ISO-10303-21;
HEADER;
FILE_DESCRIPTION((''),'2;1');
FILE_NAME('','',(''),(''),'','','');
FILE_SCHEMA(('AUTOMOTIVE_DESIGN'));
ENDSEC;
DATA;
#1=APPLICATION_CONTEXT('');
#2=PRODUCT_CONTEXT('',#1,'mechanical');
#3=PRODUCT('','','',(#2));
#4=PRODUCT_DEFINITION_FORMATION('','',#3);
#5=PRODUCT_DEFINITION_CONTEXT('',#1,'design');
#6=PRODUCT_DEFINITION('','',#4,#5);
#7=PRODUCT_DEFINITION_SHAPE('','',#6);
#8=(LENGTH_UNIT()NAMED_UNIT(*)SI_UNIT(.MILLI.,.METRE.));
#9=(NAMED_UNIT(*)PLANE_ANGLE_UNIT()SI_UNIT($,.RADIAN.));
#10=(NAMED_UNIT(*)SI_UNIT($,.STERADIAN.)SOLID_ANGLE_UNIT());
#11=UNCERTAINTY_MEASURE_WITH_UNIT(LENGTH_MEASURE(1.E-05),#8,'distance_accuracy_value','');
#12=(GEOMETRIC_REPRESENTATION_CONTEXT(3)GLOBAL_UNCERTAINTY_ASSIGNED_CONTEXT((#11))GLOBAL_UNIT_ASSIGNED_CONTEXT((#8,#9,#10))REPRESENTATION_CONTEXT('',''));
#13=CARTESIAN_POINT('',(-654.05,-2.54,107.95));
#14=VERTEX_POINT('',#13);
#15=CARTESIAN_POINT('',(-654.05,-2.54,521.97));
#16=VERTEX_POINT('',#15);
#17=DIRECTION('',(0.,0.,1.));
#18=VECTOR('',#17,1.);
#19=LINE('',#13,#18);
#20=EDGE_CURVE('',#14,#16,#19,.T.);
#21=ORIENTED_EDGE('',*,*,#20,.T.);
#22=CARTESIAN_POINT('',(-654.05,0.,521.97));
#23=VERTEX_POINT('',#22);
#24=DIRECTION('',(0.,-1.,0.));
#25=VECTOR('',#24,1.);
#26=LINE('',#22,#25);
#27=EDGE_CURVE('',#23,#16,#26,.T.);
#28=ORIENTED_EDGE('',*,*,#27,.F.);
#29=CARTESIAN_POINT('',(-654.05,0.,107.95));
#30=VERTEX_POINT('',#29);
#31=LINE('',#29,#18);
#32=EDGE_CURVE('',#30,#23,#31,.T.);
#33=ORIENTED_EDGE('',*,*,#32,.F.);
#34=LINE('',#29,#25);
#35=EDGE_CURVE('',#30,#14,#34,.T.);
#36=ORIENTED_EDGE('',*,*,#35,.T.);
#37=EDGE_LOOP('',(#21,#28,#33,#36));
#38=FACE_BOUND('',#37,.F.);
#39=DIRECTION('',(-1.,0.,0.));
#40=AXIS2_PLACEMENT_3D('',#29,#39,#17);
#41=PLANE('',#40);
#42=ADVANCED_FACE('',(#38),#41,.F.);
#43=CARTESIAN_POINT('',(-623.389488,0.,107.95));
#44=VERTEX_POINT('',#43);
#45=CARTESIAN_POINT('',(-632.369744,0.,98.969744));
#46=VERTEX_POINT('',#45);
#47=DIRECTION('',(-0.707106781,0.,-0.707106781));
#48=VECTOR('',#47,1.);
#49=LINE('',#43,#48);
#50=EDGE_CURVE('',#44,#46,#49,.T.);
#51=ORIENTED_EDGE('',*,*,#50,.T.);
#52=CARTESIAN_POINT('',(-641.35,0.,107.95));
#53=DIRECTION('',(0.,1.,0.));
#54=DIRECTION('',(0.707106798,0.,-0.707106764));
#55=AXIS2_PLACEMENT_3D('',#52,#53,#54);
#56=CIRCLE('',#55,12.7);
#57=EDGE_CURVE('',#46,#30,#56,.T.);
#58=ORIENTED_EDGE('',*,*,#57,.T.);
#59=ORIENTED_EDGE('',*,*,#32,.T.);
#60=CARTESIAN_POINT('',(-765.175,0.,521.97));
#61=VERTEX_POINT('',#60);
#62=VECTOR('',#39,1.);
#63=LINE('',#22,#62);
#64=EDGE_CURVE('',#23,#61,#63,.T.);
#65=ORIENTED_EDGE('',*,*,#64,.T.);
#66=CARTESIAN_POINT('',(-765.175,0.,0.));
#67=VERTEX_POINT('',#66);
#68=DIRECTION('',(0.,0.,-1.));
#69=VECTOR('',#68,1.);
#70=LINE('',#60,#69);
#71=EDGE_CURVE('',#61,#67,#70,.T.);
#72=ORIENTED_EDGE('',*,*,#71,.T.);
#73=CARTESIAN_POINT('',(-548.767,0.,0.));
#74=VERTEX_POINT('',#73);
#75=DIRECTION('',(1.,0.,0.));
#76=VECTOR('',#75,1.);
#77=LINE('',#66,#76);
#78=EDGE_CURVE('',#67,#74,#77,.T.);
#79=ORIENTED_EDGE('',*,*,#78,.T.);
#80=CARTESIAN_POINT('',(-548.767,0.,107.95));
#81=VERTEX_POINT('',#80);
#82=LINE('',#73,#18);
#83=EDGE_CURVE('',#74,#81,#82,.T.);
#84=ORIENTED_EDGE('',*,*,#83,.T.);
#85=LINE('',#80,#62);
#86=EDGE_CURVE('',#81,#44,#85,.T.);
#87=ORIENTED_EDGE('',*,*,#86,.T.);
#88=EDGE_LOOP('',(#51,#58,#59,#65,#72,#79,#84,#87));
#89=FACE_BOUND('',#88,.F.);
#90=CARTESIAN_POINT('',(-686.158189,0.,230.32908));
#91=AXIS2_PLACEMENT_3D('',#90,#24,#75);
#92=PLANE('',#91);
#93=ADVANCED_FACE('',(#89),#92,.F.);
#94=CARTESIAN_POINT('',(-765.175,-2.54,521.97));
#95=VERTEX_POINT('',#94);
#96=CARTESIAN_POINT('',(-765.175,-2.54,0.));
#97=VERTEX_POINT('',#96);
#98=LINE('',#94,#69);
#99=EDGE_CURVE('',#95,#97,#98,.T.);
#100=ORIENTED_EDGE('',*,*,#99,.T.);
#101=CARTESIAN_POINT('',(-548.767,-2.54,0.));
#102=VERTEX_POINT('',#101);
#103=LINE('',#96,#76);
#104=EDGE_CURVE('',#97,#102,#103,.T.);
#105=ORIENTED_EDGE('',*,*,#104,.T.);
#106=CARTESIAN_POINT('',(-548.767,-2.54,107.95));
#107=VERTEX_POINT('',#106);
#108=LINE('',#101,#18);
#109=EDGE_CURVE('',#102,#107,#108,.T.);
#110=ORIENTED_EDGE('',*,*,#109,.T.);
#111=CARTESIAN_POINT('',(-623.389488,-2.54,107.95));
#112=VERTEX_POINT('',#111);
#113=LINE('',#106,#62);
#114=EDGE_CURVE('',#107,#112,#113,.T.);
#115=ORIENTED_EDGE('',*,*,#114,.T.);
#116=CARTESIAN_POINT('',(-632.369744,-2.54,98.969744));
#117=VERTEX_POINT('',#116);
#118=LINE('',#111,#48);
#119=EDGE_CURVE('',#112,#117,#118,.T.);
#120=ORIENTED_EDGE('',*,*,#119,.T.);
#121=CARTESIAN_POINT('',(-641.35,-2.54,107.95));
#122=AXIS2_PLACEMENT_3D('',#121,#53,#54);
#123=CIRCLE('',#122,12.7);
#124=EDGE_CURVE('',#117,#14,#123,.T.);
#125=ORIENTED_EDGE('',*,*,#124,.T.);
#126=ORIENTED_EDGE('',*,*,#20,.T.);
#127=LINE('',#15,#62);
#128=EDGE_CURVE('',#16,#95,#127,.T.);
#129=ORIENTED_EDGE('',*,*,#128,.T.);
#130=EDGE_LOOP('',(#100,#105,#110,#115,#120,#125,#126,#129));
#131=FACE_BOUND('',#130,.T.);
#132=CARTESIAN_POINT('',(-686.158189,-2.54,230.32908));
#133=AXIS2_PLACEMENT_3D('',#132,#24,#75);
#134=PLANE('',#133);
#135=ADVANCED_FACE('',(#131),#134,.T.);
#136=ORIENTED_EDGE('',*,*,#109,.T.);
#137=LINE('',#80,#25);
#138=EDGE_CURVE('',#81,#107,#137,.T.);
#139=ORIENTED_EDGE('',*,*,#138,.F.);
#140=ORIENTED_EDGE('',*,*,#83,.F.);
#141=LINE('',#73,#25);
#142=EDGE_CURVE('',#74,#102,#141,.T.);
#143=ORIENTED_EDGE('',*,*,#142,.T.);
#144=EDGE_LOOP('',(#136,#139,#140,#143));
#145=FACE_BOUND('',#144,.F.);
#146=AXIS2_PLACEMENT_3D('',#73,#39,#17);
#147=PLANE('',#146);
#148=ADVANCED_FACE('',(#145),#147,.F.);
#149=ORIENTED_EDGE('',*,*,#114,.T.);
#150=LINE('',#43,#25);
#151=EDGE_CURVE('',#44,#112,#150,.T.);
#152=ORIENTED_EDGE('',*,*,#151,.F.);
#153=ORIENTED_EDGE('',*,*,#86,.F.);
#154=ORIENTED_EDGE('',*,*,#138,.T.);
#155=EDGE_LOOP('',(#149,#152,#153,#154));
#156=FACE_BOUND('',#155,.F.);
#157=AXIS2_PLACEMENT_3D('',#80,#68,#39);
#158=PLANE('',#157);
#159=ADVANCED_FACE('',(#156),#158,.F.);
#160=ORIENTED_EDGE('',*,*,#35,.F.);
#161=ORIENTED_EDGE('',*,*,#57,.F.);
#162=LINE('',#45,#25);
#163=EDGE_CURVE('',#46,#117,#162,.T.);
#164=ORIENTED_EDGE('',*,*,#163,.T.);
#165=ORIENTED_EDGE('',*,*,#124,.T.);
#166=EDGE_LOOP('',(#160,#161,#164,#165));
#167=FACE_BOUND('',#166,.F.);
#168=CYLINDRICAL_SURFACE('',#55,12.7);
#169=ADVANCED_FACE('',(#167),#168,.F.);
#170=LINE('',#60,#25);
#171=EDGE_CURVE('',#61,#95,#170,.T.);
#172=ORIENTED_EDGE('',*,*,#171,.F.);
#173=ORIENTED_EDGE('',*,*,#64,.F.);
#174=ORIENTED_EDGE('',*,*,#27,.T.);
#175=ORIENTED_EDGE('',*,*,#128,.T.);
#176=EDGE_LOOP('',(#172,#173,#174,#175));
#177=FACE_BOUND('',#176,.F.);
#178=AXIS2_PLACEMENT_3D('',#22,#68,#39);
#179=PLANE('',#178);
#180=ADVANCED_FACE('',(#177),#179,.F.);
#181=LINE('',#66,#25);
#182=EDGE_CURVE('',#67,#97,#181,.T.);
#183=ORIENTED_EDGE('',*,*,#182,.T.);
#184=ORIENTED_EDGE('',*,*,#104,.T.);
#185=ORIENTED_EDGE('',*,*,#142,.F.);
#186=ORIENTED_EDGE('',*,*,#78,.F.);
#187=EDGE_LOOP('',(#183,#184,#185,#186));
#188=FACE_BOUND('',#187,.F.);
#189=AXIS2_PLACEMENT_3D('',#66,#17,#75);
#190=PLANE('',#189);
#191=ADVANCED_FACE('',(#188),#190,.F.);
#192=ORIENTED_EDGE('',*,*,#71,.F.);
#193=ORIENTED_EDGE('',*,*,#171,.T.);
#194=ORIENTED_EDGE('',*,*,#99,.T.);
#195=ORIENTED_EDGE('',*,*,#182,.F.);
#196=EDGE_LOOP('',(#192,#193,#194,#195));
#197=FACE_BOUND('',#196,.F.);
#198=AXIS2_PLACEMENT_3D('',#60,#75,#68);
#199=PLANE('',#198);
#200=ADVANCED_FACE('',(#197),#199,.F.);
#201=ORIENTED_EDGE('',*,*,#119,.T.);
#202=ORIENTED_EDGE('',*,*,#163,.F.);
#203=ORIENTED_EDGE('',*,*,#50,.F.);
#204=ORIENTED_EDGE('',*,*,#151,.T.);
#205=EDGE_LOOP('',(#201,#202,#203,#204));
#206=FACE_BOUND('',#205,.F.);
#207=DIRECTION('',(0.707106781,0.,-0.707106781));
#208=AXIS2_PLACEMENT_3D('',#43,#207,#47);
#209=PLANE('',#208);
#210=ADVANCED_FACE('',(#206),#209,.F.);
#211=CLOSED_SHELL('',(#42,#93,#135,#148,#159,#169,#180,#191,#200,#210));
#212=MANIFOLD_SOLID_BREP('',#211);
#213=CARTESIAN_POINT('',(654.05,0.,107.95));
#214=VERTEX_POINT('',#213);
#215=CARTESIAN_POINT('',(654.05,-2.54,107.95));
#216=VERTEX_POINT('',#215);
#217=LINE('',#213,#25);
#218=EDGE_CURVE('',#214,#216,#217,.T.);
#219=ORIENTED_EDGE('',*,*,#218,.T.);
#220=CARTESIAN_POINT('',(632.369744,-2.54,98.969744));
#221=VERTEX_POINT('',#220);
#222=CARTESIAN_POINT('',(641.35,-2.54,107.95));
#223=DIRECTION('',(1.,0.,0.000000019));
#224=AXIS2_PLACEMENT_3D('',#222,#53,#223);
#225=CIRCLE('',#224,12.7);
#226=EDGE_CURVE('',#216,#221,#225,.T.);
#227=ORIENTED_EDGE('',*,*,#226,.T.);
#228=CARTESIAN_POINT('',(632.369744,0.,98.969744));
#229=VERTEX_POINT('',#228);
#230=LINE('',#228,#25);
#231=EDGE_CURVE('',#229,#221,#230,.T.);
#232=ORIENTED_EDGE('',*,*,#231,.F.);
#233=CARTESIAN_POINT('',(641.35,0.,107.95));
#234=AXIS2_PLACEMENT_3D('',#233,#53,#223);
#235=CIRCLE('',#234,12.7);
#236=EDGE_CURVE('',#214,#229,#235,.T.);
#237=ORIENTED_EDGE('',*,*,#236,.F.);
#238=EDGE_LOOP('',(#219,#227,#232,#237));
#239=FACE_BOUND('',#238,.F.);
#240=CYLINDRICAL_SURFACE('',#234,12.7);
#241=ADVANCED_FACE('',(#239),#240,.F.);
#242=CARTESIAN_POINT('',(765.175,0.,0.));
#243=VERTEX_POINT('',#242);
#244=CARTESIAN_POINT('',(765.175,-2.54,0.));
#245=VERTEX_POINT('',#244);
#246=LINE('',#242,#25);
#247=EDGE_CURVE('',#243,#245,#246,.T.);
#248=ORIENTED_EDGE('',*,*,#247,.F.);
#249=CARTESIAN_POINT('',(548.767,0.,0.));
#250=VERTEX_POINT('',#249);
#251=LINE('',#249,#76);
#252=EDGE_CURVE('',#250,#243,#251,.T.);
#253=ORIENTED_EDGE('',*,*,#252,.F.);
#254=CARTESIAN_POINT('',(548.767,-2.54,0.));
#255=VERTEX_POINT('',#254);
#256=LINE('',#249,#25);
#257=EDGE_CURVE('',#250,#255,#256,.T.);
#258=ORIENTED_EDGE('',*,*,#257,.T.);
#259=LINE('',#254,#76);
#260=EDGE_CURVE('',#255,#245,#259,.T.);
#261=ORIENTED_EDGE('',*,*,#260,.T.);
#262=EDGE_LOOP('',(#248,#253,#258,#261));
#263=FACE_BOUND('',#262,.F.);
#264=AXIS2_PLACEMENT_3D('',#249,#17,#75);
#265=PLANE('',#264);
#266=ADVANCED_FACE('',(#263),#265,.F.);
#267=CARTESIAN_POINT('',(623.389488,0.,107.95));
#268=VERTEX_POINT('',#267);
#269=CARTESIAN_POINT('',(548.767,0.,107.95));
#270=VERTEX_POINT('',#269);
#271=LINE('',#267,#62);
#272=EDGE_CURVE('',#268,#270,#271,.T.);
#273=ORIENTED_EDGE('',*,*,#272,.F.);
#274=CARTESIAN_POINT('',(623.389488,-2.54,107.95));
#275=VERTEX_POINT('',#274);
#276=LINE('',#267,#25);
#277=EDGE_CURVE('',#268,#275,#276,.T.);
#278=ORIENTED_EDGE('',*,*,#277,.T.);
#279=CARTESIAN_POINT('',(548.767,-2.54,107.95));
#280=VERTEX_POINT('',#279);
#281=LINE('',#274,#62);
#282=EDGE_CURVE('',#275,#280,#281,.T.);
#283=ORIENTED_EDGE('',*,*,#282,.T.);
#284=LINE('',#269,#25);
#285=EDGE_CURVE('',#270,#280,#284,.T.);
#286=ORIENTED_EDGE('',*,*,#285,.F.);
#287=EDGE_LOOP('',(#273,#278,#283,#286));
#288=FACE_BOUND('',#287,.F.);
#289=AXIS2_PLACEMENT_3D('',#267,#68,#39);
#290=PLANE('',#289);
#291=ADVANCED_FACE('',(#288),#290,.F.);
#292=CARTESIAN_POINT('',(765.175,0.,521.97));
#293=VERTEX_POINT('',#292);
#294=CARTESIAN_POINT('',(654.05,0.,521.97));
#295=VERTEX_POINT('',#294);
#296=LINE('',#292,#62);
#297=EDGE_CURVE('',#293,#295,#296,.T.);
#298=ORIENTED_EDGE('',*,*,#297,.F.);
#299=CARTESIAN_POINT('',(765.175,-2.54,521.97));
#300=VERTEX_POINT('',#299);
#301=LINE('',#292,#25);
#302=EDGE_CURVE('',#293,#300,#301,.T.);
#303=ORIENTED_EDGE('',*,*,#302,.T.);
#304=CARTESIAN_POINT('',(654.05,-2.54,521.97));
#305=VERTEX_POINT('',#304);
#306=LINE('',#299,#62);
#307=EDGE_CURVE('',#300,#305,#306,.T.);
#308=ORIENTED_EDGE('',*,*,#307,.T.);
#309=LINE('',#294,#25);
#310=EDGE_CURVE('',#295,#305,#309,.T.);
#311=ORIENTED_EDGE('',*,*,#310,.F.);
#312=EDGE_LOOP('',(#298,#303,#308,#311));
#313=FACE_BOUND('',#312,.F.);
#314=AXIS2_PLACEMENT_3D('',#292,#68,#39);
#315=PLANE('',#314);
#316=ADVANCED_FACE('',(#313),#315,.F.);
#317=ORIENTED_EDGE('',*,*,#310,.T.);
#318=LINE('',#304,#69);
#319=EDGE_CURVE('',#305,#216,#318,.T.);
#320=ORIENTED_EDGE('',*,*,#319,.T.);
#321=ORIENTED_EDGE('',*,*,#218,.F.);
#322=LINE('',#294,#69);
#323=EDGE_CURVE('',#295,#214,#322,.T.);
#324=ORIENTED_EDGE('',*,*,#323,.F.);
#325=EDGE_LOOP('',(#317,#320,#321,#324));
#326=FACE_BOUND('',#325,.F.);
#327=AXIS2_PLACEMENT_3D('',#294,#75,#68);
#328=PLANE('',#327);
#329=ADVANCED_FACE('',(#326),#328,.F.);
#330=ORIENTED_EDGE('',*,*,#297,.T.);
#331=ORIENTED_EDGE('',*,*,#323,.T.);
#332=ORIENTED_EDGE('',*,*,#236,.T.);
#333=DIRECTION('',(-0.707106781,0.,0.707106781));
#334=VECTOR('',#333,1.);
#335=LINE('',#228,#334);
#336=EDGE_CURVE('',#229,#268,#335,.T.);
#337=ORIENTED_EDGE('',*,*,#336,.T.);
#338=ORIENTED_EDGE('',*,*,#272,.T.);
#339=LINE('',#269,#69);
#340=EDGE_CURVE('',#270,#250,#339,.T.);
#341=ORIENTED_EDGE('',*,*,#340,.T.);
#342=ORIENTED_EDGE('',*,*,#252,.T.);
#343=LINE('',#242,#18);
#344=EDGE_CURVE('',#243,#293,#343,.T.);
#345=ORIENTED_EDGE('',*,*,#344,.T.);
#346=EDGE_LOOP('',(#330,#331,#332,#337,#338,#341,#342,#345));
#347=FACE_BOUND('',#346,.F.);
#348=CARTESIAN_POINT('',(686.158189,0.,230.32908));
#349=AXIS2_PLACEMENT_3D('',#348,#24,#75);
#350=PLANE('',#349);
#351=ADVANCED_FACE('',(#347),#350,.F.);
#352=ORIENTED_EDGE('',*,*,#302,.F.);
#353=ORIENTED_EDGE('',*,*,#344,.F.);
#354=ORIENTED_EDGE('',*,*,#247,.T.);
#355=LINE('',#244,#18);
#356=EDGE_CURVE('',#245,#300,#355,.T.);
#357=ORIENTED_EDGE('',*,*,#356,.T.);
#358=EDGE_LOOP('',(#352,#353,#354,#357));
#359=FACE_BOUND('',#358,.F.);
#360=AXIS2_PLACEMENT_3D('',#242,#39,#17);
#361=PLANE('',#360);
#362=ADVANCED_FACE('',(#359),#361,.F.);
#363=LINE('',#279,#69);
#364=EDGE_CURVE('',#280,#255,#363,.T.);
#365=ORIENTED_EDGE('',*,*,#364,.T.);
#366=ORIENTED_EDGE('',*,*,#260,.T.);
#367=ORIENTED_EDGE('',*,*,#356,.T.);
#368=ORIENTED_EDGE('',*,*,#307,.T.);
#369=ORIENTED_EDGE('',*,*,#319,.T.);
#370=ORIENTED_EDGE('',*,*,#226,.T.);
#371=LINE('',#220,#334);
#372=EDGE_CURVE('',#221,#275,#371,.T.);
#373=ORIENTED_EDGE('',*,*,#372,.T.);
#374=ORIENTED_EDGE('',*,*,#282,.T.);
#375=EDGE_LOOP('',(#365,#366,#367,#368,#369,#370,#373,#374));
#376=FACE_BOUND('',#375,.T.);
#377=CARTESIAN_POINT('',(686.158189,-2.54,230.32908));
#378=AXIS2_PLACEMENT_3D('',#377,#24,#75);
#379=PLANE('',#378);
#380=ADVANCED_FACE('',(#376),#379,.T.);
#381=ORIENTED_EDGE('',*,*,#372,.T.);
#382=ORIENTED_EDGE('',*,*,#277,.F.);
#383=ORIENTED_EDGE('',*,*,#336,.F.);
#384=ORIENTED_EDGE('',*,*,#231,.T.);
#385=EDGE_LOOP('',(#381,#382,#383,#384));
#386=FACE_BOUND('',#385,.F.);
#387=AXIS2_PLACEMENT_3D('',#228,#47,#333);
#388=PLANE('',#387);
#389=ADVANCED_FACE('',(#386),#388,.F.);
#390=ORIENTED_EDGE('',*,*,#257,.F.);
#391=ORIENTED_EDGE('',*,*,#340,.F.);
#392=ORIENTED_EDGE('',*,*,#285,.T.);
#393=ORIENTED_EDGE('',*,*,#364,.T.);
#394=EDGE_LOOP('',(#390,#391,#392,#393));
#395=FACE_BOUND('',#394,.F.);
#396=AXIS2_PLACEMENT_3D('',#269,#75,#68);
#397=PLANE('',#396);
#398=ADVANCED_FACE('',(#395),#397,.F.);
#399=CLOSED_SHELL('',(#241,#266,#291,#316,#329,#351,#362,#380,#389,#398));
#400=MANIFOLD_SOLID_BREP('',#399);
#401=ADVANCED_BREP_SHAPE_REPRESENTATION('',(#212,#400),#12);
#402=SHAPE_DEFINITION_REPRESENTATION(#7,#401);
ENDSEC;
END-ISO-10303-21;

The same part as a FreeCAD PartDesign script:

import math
import FreeCAD as App
import Part
import Sketcher
from FreeCAD import Vector
Q = App.Units.Quantity

doc = App.newDocument("Part")
body = doc.addObject("PartDesign::Body", "Body")
body.AllowCompound = True

# Sketch on XZ plane
sketch1 = body.newObject("Sketcher::SketchObject", "Sketch")
sketch1.AttachmentSupport = (doc.getObject("XZ_Plane"), [""])
sketch1.MapMode = "FlatFace"
sketch1.addGeometry([
    Part.LineSegment(Vector(-623.389488, 107.95, 0), Vector(-632.369744, 98.969744, 0)),  # 0
    Part.ArcOfCircle(Part.Circle(Vector(-641.35, 107.95, 0), Vector(0, 0, 1), 12.7), math.radians(179.999999), math.radians(315.000001)),  # 1
    Part.LineSegment(Vector(-654.05, 107.95, 0), Vector(-654.05, 521.97, 0)),  # 2
    Part.LineSegment(Vector(-654.05, 521.97, 0), Vector(-765.175, 521.97, 0)),  # 3
    Part.LineSegment(Vector(-765.175, 521.97, 0), Vector(-765.175, 0, 0)),  # 4
    Part.LineSegment(Vector(-765.175, 0, 0), Vector(-548.767, 0, 0)),  # 5
    Part.LineSegment(Vector(-548.767, 0, 0), Vector(-548.767, 107.95, 0)),  # 6
    Part.LineSegment(Vector(-548.767, 107.95, 0), Vector(-623.389488, 107.95, 0)),  # 7
    Part.LineSegment(Vector(765.175, 0, 0), Vector(765.175, 521.97, 0)),  # 8
    Part.LineSegment(Vector(765.175, 521.97, 0), Vector(654.05, 521.97, 0)),  # 9
    Part.LineSegment(Vector(654.05, 521.97, 0), Vector(654.05, 107.95, 0)),  # 10
    Part.ArcOfCircle(Part.Circle(Vector(641.35, 107.95, 0), Vector(0, 0, 1), 12.7), math.radians(-135.000001), math.radians(0.000001)),  # 11
    Part.LineSegment(Vector(632.369744, 98.969744, 0), Vector(623.389488, 107.95, 0)),  # 12
    Part.LineSegment(Vector(623.389488, 107.95, 0), Vector(548.767, 107.95, 0)),  # 13
    Part.LineSegment(Vector(548.767, 107.95, 0), Vector(548.767, 0, 0)),  # 14
    Part.LineSegment(Vector(548.767, 0, 0), Vector(765.175, 0, 0)),  # 15
], False)
sketch1.addConstraint([
    Sketcher.Constraint("Tangent", 0, 2, 1, 2),
    Sketcher.Constraint("Tangent", 1, 1, 2, 1),
    Sketcher.Constraint("Coincident", 2, 2, 3, 1),
    Sketcher.Constraint("Coincident", 3, 2, 4, 1),
    Sketcher.Constraint("Coincident", 4, 2, 5, 1),
    Sketcher.Constraint("Coincident", 5, 2, 6, 1),
    Sketcher.Constraint("Coincident", 6, 2, 7, 1),
    Sketcher.Constraint("Coincident", 7, 2, 0, 1),
    Sketcher.Constraint("Coincident", 8, 2, 9, 1),
    Sketcher.Constraint("Coincident", 9, 2, 10, 1),
    Sketcher.Constraint("Tangent", 10, 2, 11, 2),
    Sketcher.Constraint("Tangent", 11, 1, 12, 1),
    Sketcher.Constraint("Coincident", 12, 2, 13, 1),
    Sketcher.Constraint("Coincident", 13, 2, 14, 1),
    Sketcher.Constraint("Coincident", 14, 2, 15, 1),
    Sketcher.Constraint("Coincident", 15, 2, 8, 1),
    Sketcher.Constraint("Vertical", 2),
    Sketcher.Constraint("Horizontal", 3),
    Sketcher.Constraint("Vertical", 4),
    Sketcher.Constraint("Horizontal", 5),
    Sketcher.Constraint("Vertical", 6),
    Sketcher.Constraint("Horizontal", 7),
    Sketcher.Constraint("Vertical", 8),
    Sketcher.Constraint("Horizontal", 9),
    Sketcher.Constraint("Vertical", 10),
    Sketcher.Constraint("Horizontal", 13),
    Sketcher.Constraint("Vertical", 14),
    Sketcher.Constraint("Horizontal", 15),
    Sketcher.Constraint("Equal", 1, 11),
    Sketcher.Constraint("Symmetric", 5, 2, 14, 2, -1, 1),
    Sketcher.Constraint("Symmetric", 1, 3, 11, 3, -2),
    Sketcher.Constraint("Symmetric", 3, 2, 8, 2, -2),
    Sketcher.Constraint("Symmetric", 7, 2, 12, 2, -2),
    Sketcher.Constraint("PointOnObject", 4, 2, -1),
    Sketcher.Constraint("Perpendicular", 0, 12),
    Sketcher.Constraint("Horizontal", 1, 1, 6, 2),
    Sketcher.Constraint("Radius", 1, Q("0.5 in")),
    Sketcher.Constraint("DistanceY", 2, 1, 2, 2, Q("16.3 in")),
    Sketcher.Constraint("DistanceX", 1, 1, 11, 3, Q("51 in")),
    Sketcher.Constraint("DistanceX", 5, 1, 5, 2, Q("8.52 in")),
    Sketcher.Constraint("DistanceY", 4, 2, 4, 1, Q("20.55 in")),
    Sketcher.Constraint("DistanceX", 3, 2, 3, 1, Q("4.375 in")),
])
pad1 = body.newObject("PartDesign::Pad", "Pad")
pad1.Profile = sketch1
pad1.Length = Q("0.1 in")

doc.recompute()
